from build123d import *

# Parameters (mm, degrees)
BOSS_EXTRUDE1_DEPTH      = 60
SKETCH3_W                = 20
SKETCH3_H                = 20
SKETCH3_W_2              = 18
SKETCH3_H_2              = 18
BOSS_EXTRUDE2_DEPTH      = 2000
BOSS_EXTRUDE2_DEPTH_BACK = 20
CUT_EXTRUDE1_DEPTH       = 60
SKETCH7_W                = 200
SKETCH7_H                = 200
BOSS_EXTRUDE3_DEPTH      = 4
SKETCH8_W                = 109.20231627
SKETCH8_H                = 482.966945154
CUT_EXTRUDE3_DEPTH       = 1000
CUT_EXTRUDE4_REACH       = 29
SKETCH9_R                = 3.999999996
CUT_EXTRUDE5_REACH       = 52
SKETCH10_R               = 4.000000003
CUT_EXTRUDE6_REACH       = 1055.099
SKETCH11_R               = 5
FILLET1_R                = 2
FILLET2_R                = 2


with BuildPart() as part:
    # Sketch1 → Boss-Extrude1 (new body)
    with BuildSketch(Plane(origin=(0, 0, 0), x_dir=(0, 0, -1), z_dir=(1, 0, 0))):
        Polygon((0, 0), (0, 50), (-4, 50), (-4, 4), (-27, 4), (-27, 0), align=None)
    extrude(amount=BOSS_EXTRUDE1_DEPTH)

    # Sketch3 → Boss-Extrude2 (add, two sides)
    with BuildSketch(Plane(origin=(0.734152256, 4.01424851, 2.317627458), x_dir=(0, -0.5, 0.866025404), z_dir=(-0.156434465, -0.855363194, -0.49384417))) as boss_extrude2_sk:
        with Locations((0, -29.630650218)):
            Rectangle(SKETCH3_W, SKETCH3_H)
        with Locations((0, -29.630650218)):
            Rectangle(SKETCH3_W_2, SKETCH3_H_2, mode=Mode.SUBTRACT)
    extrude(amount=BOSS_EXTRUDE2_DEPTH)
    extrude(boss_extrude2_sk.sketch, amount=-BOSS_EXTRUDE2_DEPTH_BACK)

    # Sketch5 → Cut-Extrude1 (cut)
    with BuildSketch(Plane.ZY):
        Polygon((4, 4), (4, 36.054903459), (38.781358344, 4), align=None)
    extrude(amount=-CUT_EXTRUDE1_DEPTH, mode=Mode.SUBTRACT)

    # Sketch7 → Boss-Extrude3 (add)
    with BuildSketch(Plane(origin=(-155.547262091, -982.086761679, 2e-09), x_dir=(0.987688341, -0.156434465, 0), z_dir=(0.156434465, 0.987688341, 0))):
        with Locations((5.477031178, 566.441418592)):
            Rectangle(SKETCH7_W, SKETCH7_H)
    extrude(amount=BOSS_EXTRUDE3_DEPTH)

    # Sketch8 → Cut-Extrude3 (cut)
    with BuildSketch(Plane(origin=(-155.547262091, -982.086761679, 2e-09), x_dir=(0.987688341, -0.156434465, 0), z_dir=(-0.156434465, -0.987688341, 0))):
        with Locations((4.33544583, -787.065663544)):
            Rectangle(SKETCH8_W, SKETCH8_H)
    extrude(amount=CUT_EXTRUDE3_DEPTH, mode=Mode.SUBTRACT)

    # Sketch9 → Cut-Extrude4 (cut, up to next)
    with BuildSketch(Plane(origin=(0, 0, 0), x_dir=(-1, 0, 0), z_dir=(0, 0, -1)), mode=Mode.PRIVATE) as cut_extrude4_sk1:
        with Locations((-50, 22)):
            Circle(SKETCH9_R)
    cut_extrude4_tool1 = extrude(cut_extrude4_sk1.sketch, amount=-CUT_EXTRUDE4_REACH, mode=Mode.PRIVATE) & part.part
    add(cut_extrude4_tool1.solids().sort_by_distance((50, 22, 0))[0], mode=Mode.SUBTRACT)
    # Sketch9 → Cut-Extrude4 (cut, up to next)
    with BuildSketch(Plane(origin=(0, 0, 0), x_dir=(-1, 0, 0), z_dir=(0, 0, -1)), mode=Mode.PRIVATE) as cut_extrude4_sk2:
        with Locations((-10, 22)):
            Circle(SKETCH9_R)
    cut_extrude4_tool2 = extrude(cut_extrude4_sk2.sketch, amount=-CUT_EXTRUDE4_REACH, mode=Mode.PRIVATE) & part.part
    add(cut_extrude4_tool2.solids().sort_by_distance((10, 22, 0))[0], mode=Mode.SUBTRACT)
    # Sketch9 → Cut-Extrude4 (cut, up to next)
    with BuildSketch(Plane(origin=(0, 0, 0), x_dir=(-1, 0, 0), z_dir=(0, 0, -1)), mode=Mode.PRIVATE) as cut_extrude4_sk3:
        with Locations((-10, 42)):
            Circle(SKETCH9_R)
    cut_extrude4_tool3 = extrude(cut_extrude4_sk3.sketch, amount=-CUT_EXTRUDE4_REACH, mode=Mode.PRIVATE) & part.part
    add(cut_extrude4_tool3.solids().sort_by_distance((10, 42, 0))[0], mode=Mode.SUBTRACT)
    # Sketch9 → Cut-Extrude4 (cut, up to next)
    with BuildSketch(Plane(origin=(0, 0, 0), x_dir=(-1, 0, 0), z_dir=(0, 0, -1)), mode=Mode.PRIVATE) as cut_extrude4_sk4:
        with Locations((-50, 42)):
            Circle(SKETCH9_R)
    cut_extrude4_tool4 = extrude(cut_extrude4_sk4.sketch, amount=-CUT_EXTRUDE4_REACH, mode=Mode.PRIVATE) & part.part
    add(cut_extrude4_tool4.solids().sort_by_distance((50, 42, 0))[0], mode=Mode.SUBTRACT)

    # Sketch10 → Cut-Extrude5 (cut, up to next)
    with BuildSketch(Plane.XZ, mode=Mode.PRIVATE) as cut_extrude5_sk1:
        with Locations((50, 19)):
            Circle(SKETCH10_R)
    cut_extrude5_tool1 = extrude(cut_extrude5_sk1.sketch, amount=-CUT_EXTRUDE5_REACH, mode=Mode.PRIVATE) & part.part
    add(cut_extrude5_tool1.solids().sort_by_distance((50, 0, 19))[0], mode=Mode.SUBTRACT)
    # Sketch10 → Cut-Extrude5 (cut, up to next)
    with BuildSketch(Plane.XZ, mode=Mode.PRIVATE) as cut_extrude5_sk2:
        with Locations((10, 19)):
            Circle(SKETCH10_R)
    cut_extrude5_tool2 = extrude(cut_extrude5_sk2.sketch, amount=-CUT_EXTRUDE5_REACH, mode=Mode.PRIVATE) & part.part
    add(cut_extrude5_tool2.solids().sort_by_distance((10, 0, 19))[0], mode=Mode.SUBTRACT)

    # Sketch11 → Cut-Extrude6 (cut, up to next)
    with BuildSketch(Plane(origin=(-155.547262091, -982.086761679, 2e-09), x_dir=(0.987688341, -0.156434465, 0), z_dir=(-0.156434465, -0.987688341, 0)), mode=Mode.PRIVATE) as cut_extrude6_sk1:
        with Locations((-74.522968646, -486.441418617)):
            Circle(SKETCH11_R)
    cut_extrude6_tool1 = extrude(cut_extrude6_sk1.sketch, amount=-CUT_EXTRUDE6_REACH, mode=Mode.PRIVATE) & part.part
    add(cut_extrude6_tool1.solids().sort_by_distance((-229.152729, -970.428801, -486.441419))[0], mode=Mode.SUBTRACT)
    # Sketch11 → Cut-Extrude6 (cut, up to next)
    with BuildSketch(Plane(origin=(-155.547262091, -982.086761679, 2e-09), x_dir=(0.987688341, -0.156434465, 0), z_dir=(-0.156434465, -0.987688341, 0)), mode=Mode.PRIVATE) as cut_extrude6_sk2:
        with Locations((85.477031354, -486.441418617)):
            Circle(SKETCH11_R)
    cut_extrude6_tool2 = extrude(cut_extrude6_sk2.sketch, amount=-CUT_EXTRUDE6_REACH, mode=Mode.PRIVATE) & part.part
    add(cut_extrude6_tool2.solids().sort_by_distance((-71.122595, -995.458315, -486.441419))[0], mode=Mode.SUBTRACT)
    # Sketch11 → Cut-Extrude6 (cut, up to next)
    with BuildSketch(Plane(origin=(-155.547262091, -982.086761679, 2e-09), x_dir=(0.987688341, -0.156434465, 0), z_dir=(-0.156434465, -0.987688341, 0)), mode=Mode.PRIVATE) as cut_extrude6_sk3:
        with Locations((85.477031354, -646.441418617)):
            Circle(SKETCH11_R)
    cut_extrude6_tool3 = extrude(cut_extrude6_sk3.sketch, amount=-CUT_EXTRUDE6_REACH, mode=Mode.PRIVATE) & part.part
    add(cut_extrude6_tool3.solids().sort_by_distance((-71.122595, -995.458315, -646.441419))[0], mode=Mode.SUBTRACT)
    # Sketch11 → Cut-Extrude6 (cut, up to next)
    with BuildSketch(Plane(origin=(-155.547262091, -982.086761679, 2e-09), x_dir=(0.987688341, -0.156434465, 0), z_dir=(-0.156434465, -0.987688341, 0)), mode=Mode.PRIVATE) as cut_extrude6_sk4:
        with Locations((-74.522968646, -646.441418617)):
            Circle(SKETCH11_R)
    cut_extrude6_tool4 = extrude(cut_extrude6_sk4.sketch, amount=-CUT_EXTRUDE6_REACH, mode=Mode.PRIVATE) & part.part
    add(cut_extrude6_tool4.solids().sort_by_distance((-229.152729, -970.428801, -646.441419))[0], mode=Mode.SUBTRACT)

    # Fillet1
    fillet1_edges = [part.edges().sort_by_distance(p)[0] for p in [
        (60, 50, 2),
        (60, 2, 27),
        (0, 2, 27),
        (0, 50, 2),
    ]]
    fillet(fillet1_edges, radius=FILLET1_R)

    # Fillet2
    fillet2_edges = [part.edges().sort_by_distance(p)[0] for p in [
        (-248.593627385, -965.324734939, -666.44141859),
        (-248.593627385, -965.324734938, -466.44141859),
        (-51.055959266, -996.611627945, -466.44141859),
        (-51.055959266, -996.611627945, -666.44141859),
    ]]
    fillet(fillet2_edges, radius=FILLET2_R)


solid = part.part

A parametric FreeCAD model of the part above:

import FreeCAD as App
import Part
import Sketcher

V = App.Vector
Q = App.Units.Quantity


def edges_at(feature, points):
    """Names of the edges that pass closest to the given points."""
    edges = feature.Shape.Edges
    near = lambda p: min(range(len(edges)), key=lambda i: edges[i].distToShape(Part.Vertex(*p))[0])
    return sorted({f"Edge{near(p) + 1}" for p in points})

doc = App.newDocument("Part")
body = doc.addObject("PartDesign::Body", "Body")

# Sketch on YZ plane
sketch1 = doc.addObject("Sketcher::SketchObject", "Sketch")
body.addObject(sketch1)
sketch1.AttachmentSupport = (doc.YZ_Plane, [""])
sketch1.MapMode = "FlatFace"
sketch1.addGeometry(Part.LineSegment(V(0, 0, 0), V(50, 0, 0)), False)
sketch1.addGeometry(Part.LineSegment(V(50, 0, 0), V(50, 4, 0)), False)
sketch1.addGeometry(Part.LineSegment(V(50, 4, 0), V(4, 4, 0)), False)
sketch1.addGeometry(Part.LineSegment(V(4, 4, 0), V(4, 27, 0)), False)
sketch1.addGeometry(Part.LineSegment(V(4, 27, 0), V(0, 27, 0)), False)
sketch1.addGeometry(Part.LineSegment(V(0, 27, 0), V(0, 0, 0)), False)
sketch1.addConstraint(Sketcher.Constraint("Coincident", 0, 2, 1, 1))
sketch1.addConstraint(Sketcher.Constraint("Coincident", 1, 2, 2, 1))
sketch1.addConstraint(Sketcher.Constraint("Coincident", 2, 2, 3, 1))
sketch1.addConstraint(Sketcher.Constraint("Coincident", 3, 2, 4, 1))
sketch1.addConstraint(Sketcher.Constraint("Coincident", 4, 2, 5, 1))
sketch1.addConstraint(Sketcher.Constraint("Coincident", 5, 2, 0, 1))
sketch1.addConstraint(Sketcher.Constraint("Horizontal", 0))
sketch1.addConstraint(Sketcher.Constraint("Vertical", 1))
sketch1.addConstraint(Sketcher.Constraint("Horizontal", 2))
sketch1.addConstraint(Sketcher.Constraint("Vertical", 3))
sketch1.addConstraint(Sketcher.Constraint("Horizontal", 4))
sketch1.addConstraint(Sketcher.Constraint("Vertical", 5))
sketch1.addConstraint(Sketcher.Constraint("Coincident", 5, 2, -1, 1))
sketch1.addConstraint(Sketcher.Constraint("Equal", 4, 1))
sketch1.addConstraint(Sketcher.Constraint("DistanceX", 0, 1, 0, 2, Q("50 mm")))
sketch1.addConstraint(Sketcher.Constraint("DistanceX", 2, 2, 2, 1, Q("46 mm")))
sketch1.addConstraint(Sketcher.Constraint("DistanceY", 3, 1, 3, 2, Q("23 mm")))
pad1 = doc.addObject("PartDesign::Pad", "Pad")
body.addObject(pad1)
pad1.Profile = sketch1
pad1.Length = 60

# Sketch on an angled plane
sketch2 = doc.addObject("Sketcher::SketchObject", "Sketch001")
body.addObject(sketch2)
sketch2.Placement = App.Placement(V(0.734152, 4.014249, 2.317627), App.Rotation(V(0, -0.5, 0.866025404), V(-0.987688341, 0.135476221, 0.078217232), V(-0.156434465, -0.855363194, -0.49384417), "ZXY"))
sketch2.addGeometry(Part.LineSegment(V(-10, -19.63065, 0), V(-10, -39.63065, 0)), False)
sketch2.addGeometry(Part.LineSegment(V(-10, -39.63065, 0), V(10, -39.63065, 0)), False)
sketch2.addGeometry(Part.LineSegment(V(10, -39.63065, 0), V(10, -19.63065, 0)), False)
sketch2.addGeometry(Part.LineSegment(V(10, -19.63065, 0), V(-10, -19.63065, 0)), False)
sketch2.addGeometry(Part.LineSegment(V(9, -38.63065, 0), V(-9, -38.63065, 0)), False)
sketch2.addGeometry(Part.LineSegment(V(-9, -38.63065, 0), V(-9, -20.63065, 0)), False)
sketch2.addGeometry(Part.LineSegment(V(-9, -20.63065, 0), V(9, -20.63065, 0)), False)
sketch2.addGeometry(Part.LineSegment(V(9, -20.63065, 0), V(9, -38.63065, 0)), False)
sketch2.addConstraint(Sketcher.Constraint("Coincident", 0, 2, 1, 1))
sketch2.addConstraint(Sketcher.Constraint("Coincident", 1, 2, 2, 1))
sketch2.addConstraint(Sketcher.Constraint("Coincident", 2, 2, 3, 1))
sketch2.addConstraint(Sketcher.Constraint("Coincident", 3, 2, 0, 1))
sketch2.addConstraint(Sketcher.Constraint("Coincident", 4, 2, 5, 1))
sketch2.addConstraint(Sketcher.Constraint("Coincident", 5, 2, 6, 1))
sketch2.addConstraint(Sketcher.Constraint("Coincident", 6, 2, 7, 1))
sketch2.addConstraint(Sketcher.Constraint("Coincident", 7, 2, 4, 1))
sketch2.addConstraint(Sketcher.Constraint("Vertical", 0))
sketch2.addConstraint(Sketcher.Constraint("Horizontal", 1))
sketch2.addConstraint(Sketcher.Constraint("Vertical", 2))
sketch2.addConstraint(Sketcher.Constraint("Horizontal", 3))
sketch2.addConstraint(Sketcher.Constraint("Horizontal", 4))
sketch2.addConstraint(Sketcher.Constraint("Vertical", 5))
sketch2.addConstraint(Sketcher.Constraint("Horizontal", 6))
sketch2.addConstraint(Sketcher.Constraint("Vertical", 7))
sketch2.addConstraint(Sketcher.Constraint("Equal", 3, 0))
sketch2.addConstraint(Sketcher.Constraint("Equal", 6, 5))
sketch2.addConstraint(Sketcher.Constraint("DistanceX", 1, 1, 1, 2, Q("20 mm")))
sketch2.addConstraint(Sketcher.Constraint("DistanceX", 4, 2, 4, 1, Q("18 mm")))
sketch2.addConstraint(Sketcher.Constraint("DistanceX", 0, 2, -1, 1, Q("10 mm")))
sketch2.addConstraint(Sketcher.Constraint("DistanceX", 4, 2, -1, 1, Q("9 mm")))
sketch2.addConstraint(Sketcher.Constraint("DistanceY", 0, 2, 4, 2, Q("1 mm")))
sketch2.addConstraint(Sketcher.Constraint("DistanceY", 0, 2, -1, 1, Q("39.63065 mm")))
pad2 = doc.addObject("PartDesign::Pad", "Pad001")
body.addObject(pad2)
pad2.Profile = sketch2
pad2.Type = "TwoLengths"
pad2.Length = 2000
pad2.Length2 = 20

# Sketch on YZ plane
sketch3 = doc.addObject("Sketcher::SketchObject", "Sketch002")
body.addObject(sketch3)
sketch3.AttachmentSupport = (doc.YZ_Plane, [""])
sketch3.MapMode = "FlatFace"
sketch3.addGeometry(Part.LineSegment(V(36.054903, 4, 0), V(4, 4, 0)), False)
sketch3.addGeometry(Part.LineSegment(V(4, 4, 0), V(4, 38.781358, 0)), False)
sketch3.addGeometry(Part.LineSegment(V(4, 38.781358, 0), V(36.054903, 4, 0)), False)
sketch3.addConstraint(Sketcher.Constraint("Coincident", 0, 2, 1, 1))
sketch3.addConstraint(Sketcher.Constraint("Coincident", 1, 2, 2, 1))
sketch3.addConstraint(Sketcher.Constraint("Coincident", 2, 2, 0, 1))
sketch3.addConstraint(Sketcher.Constraint("Horizontal", 0))
sketch3.addConstraint(Sketcher.Constraint("Vertical", 1))
sketch3.addConstraint(Sketcher.Constraint("DistanceX", -1, 1, 0, 2, Q("4 mm")))
sketch3.addConstraint(Sketcher.Constraint("DistanceY", -1, 1, 0, 2, Q("4 mm")))
sketch3.addConstraint(Sketcher.Constraint("DistanceY", 1, 1, 1, 2, Q("34.781358 mm")))
sketch3.addConstraint(Sketcher.Constraint("Distance", 2, Q("47.29968 mm")))
pocket1 = doc.addObject("PartDesign::Pocket", "Pocket")
body.addObject(pocket1)
pocket1.Profile = sketch3
pocket1.Length = 60
pocket1.Reversed = True

# Sketch on an angled plane
sketch4 = doc.addObject("Sketcher::SketchObject", "Sketch003")
body.addObject(sketch4)
sketch4.Placement = App.Placement(V(-155.547262, -982.086762, 0), App.Rotation(V(0.987688341, -0.156434465, 0), V(0, 0, -1.000000001), V(0.156434465, 0.987688341, 0), "ZXY"))
sketch4.addGeometry(Part.LineSegment(V(-94.522969, 666.44142, 0), V(-94.522969, 466.441419, 0)), False)
sketch4.addGeometry(Part.LineSegment(V(-94.522969, 466.441419, 0), V(105.477031, 466.441419, 0)), False)
sketch4.addGeometry(Part.LineSegment(V(105.477031, 466.441419, 0), V(105.477031, 666.44142, 0)), False)
sketch4.addGeometry(Part.LineSegment(V(105.477031, 666.44142, 0), V(-94.522969, 666.44142, 0)), False)
sketch4.addConstraint(Sketcher.Constraint("Coincident", 0, 2, 1, 1))
sketch4.addConstraint(Sketcher.Constraint("Coincident", 1, 2, 2, 1))
sketch4.addConstraint(Sketcher.Constraint("Coincident", 2, 2, 3, 1))
sketch4.addConstraint(Sketcher.Constraint("Coincident", 3, 2, 0, 1))
sketch4.addConstraint(Sketcher.Constraint("Vertical", 0))
sketch4.addConstraint(Sketcher.Constraint("Horizontal", 1))
sketch4.addConstraint(Sketcher.Constraint("Vertical", 2))
sketch4.addConstraint(Sketcher.Constraint("Horizontal", 3))
sketch4.addConstraint(Sketcher.Constraint("Equal", 3, 0))
sketch4.addConstraint(Sketcher.Constraint("DistanceX", 1, 1, 1, 2, Q("200 mm")))
sketch4.addConstraint(Sketcher.Constraint("DistanceX", 0, 2, -1, 1, Q("94.522969 mm")))
sketch4.addConstraint(Sketcher.Constraint("DistanceY", -1, 1, 0, 2, Q("466.441419 mm")))
pad3 = doc.addObject("PartDesign::Pad", "Pad002")
body.addObject(pad3)
pad3.Profile = sketch4
pad3.Length = 4

# Sketch on an angled plane
sketch5 = doc.addObject("Sketcher::SketchObject", "Sketch004")
body.addObject(sketch5)
sketch5.Placement = App.Placement(V(-155.547262, -982.086762, 0), App.Rotation(V(0.987688341, -0.156434465, 0), V(0, 0, 1.000000001), V(-0.156434465, -0.987688341, 0), "ZXY"))
sketch5.addGeometry(Part.LineSegment(V(-50.265712, -545.582192, 0), V(-50.265712, -1028.549138, 0)), False)
sketch5.addGeometry(Part.LineSegment(V(-50.265712, -1028.549138, 0), V(58.936604, -1028.549138, 0)), False)
sketch5.addGeometry(Part.LineSegment(V(58.936604, -1028.549138, 0), V(58.936604, -545.582192, 0)), False)
sketch5.addGeometry(Part.LineSegment(V(58.936604, -545.582192, 0), V(-50.265712, -545.582192, 0)), False)
sketch5.addConstraint(Sketcher.Constraint("Coincident", 0, 2, 1, 1))
sketch5.addConstraint(Sketcher.Constraint("Coincident", 1, 2, 2, 1))
sketch5.addConstraint(Sketcher.Constraint("Coincident", 2, 2, 3, 1))
sketch5.addConstraint(Sketcher.Constraint("Coincident", 3, 2, 0, 1))
sketch5.addConstraint(Sketcher.Constraint("Vertical", 0))
sketch5.addConstraint(Sketcher.Constraint("Horizontal", 1))
sketch5.addConstraint(Sketcher.Constraint("Vertical", 2))
sketch5.addConstraint(Sketcher.Constraint("Horizontal", 3))
sketch5.addConstraint(Sketcher.Constraint("DistanceX", 1, 1, 1, 2, Q("109.202316 mm")))
sketch5.addConstraint(Sketcher.Constraint("DistanceY", 0, 2, 0, 1, Q("482.966946 mm")))
sketch5.addConstraint(Sketcher.Constraint("DistanceY", 2, 2, -1, 1, Q("545.582192 mm")))
sketch5.addConstraint(Sketcher.Constraint("DistanceX", 0, 2, -1, 1, Q("50.265712 mm")))
pocket2 = doc.addObject("PartDesign::Pocket", "Pocket001")
body.addObject(pocket2)
pocket2.Profile = sketch5
pocket2.Length = 1000
pocket2.Reversed = True

# Sketch on XY plane
sketch6 = doc.addObject("Sketcher::SketchObject", "Sketch005")
body.addObject(sketch6)
sketch6.AttachmentSupport = (doc.XY_Plane, [""])
sketch6.MapMode = "FlatFace"
sketch6.addGeometry(Part.Circle(V(50, 22, 0), V(0, 0, 1), 4), False)
sketch6.addConstraint(Sketcher.Constraint("Diameter", 0, Q("8 mm")))
sketch6.addConstraint(Sketcher.Constraint("DistanceX", -1, 1, 0, 3, Q("50 mm")))
sketch6.addConstraint(Sketcher.Constraint("DistanceY", -1, 1, 0, 3, Q("22 mm")))
pocket3 = doc.addObject("PartDesign::Pocket", "Pocket002")
body.addObject(pocket3)
pocket3.Profile = sketch6
pocket3.Type = "UpToFirst"
pocket3.Reversed = True

# Sketch on XY plane
sketch7 = doc.addObject("Sketcher::SketchObject", "Sketch006")
body.addObject(sketch7)
sketch7.AttachmentSupport = (doc.XY_Plane, [""])
sketch7.MapMode = "FlatFace"
sketch7.addGeometry(Part.Circle(V(10, 22, 0), V(0, 0, 1), 4), False)
sketch7.addConstraint(Sketcher.Constraint("Diameter", 0, Q("8 mm")))
sketch7.addConstraint(Sketcher.Constraint("DistanceX", -1, 1, 0, 3, Q("10 mm")))
sketch7.addConstraint(Sketcher.Constraint("DistanceY", -1, 1, 0, 3, Q("22 mm")))
pocket4 = doc.addObject("PartDesign::Pocket", "Pocket003")
body.addObject(pocket4)
pocket4.Profile = sketch7
pocket4.Type = "UpToFirst"
pocket4.Reversed = True

# Sketch on XY plane
sketch8 = doc.addObject("Sketcher::SketchObject", "Sketch007")
body.addObject(sketch8)
sketch8.AttachmentSupport = (doc.XY_Plane, [""])
sketch8.MapMode = "FlatFace"
sketch8.addGeometry(Part.Circle(V(10, 42, 0), V(0, 0, 1), 4), False)
sketch8.addConstraint(Sketcher.Constraint("Diameter", 0, Q("8 mm")))
sketch8.addConstraint(Sketcher.Constraint("DistanceX", -1, 1, 0, 3, Q("10 mm")))
sketch8.addConstraint(Sketcher.Constraint("DistanceY", -1, 1, 0, 3, Q("42 mm")))
pocket5 = doc.addObject("PartDesign::Pocket", "Pocket004")
body.addObject(pocket5)
pocket5.Profile = sketch8
pocket5.Type = "UpToFirst"
pocket5.Reversed = True

# Sketch on XY plane
sketch9 = doc.addObject("Sketcher::SketchObject", "Sketch008")
body.addObject(sketch9)
sketch9.AttachmentSupport = (doc.XY_Plane, [""])
sketch9.MapMode = "FlatFace"
sketch9.addGeometry(Part.Circle(V(50, 42, 0), V(0, 0, 1), 4), False)
sketch9.addConstraint(Sketcher.Constraint("Diameter", 0, Q("8 mm")))
sketch9.addConstraint(Sketcher.Constraint("DistanceX", -1, 1, 0, 3, Q("50 mm")))
sketch9.addConstraint(Sketcher.Constraint("DistanceY", -1, 1, 0, 3, Q("42 mm")))
pocket6 = doc.addObject("PartDesign::Pocket", "Pocket005")
body.addObject(pocket6)
pocket6.Profile = sketch9
pocket6.Type = "UpToFirst"
pocket6.Reversed = True

# Sketch on XZ plane
sketch10 = doc.addObject("Sketcher::SketchObject", "Sketch009")
body.addObject(sketch10)
sketch10.AttachmentSupport = (doc.XZ_Plane, [""])
sketch10.MapMode = "FlatFace"
sketch10.addGeometry(Part.Circle(V(50, 19, 0), V(0, 0, 1), 4), False)
sketch10.addConstraint(Sketcher.Constraint("Diameter", 0, Q("8 mm")))
sketch10.addConstraint(Sketcher.Constraint("DistanceX", -1, 1, 0, 3, Q("50 mm")))
sketch10.addConstraint(Sketcher.Constraint("DistanceY", -1, 1, 0, 3, Q("19 mm")))
pocket7 = doc.addObject("PartDesign::Pocket", "Pocket006")
body.addObject(pocket7)
pocket7.Profile = sketch10
pocket7.Type = "UpToFirst"

# Sketch on XZ plane
sketch11 = doc.addObject("Sketcher::SketchObject", "Sketch010")
body.addObject(sketch11)
sketch11.AttachmentSupport = (doc.XZ_Plane, [""])
sketch11.MapMode = "FlatFace"
sketch11.addGeometry(Part.Circle(V(10, 19, 0), V(0, 0, 1), 4), False)
sketch11.addConstraint(Sketcher.Constraint("Diameter", 0, Q("8 mm")))
sketch11.addConstraint(Sketcher.Constraint("DistanceX", -1, 1, 0, 3, Q("10 mm")))
sketch11.addConstraint(Sketcher.Constraint("DistanceY", -1, 1, 0, 3, Q("19 mm")))
pocket8 = doc.addObject("PartDesign::Pocket", "Pocket007")
body.addObject(pocket8)
pocket8.Profile = sketch11
pocket8.Type = "UpToFirst"

# Sketch on an angled plane
sketch12 = doc.addObject("Sketcher::SketchObject", "Sketch011")
body.addObject(sketch12)
sketch12.Placement = App.Placement(V(-155.547262, -982.086762, 0), App.Rotation(V(0.987688341, -0.156434465, 0), V(0, 0, 1.000000001), V(-0.156434465, -0.987688341, 0), "ZXY"))
sketch12.addGeometry(Part.Circle(V(-74.522969, -486.441419, 0), V(0, 0, 1), 5), False)
sketch12.addConstraint(Sketcher.Constraint("Diameter", 0, Q("10 mm")))
sketch12.addConstraint(Sketcher.Constraint("DistanceX", 0, 3, -1, 1, Q("74.522969 mm")))
sketch12.addConstraint(Sketcher.Constraint("DistanceY", 0, 3, -1, 1, Q("486.441419 mm")))
pocket9 = doc.addObject("PartDesign::Pocket", "Pocket008")
body.addObject(pocket9)
pocket9.Profile = sketch12
pocket9.Type = "UpToFirst"

# Sketch on an angled plane
sketch13 = doc.addObject("Sketcher::SketchObject", "Sketch012")
body.addObject(sketch13)
sketch13.Placement = App.Placement(V(-155.547262, -982.086762, 0), App.Rotation(V(0.987688341, -0.156434465, 0), V(0, 0, 1.000000001), V(-0.156434465, -0.987688341, 0), "ZXY"))
sketch13.addGeometry(Part.Circle(V(85.477031, -486.441419, 0), V(0, 0, 1), 5), False)
sketch13.addConstraint(Sketcher.Constraint("Diameter", 0, Q("10 mm")))
sketch13.addConstraint(Sketcher.Constraint("DistanceX", -1, 1, 0, 3, Q("85.477031 mm")))
sketch13.addConstraint(Sketcher.Constraint("DistanceY", 0, 3, -1, 1, Q("486.441419 mm")))
pocket10 = doc.addObject("PartDesign::Pocket", "Pocket009")
body.addObject(pocket10)
pocket10.Profile = sketch13
pocket10.Type = "UpToFirst"

# Sketch on an angled plane
sketch14 = doc.addObject("Sketcher::SketchObject", "Sketch013")
body.addObject(sketch14)
sketch14.Placement = App.Placement(V(-155.547262, -982.086762, 0), App.Rotation(V(0.987688341, -0.156434465, 0), V(0, 0, 1.000000001), V(-0.156434465, -0.987688341, 0), "ZXY"))
sketch14.addGeometry(Part.Circle(V(85.477031, -646.44142, 0), V(0, 0, 1), 5), False)
sketch14.addConstraint(Sketcher.Constraint("Diameter", 0, Q("10 mm")))
sketch14.addConstraint(Sketcher.Constraint("DistanceX", -1, 1, 0, 3, Q("85.477031 mm")))
sketch14.addConstraint(Sketcher.Constraint("DistanceY", 0, 3, -1, 1, Q("646.44142 mm")))
pocket11 = doc.addObject("PartDesign::Pocket", "Pocket010")
body.addObject(pocket11)
pocket11.Profile = sketch14
pocket11.Type = "UpToFirst"

# Sketch on an angled plane
sketch15 = doc.addObject("Sketcher::SketchObject", "Sketch014")
body.addObject(sketch15)
sketch15.Placement = App.Placement(V(-155.547262, -982.086762, 0), App.Rotation(V(0.987688341, -0.156434465, 0), V(0, 0, 1.000000001), V(-0.156434465, -0.987688341, 0), "ZXY"))
sketch15.addGeometry(Part.Circle(V(-74.522969, -646.44142, 0), V(0, 0, 1), 5), False)
sketch15.addConstraint(Sketcher.Constraint("Diameter", 0, Q("10 mm")))
sketch15.addConstraint(Sketcher.Constraint("DistanceX", 0, 3, -1, 1, Q("74.522969 mm")))
sketch15.addConstraint(Sketcher.Constraint("DistanceY", 0, 3, -1, 1, Q("646.44142 mm")))
pocket12 = doc.addObject("PartDesign::Pocket", "Pocket011")
body.addObject(pocket12)
pocket12.Profile = sketch15
pocket12.Type = "UpToFirst"
doc.recompute()

fillet = doc.addObject("PartDesign::Fillet", "Fillet")
body.addObject(fillet)
fillet.Base = (pocket12, edges_at(pocket12, [
    (60, 50, 2),
    (60, 2, 27),
    (0, 2, 27),
    (0, 50, 2),
]))
fillet.Radius = 2
doc.recompute()

fillet2 = doc.addObject("PartDesign::Fillet", "Fillet001")
body.addObject(fillet2)
fillet2.Base = (fillet, edges_at(fillet, [
    (-248.594, -965.325, -666.441),
    (-248.594, -965.325, -466.441),
    (-51.056, -996.612, -466.441),
    (-51.056, -996.612, -666.441),
]))
fillet2.Radius = 2

doc.recompute()
